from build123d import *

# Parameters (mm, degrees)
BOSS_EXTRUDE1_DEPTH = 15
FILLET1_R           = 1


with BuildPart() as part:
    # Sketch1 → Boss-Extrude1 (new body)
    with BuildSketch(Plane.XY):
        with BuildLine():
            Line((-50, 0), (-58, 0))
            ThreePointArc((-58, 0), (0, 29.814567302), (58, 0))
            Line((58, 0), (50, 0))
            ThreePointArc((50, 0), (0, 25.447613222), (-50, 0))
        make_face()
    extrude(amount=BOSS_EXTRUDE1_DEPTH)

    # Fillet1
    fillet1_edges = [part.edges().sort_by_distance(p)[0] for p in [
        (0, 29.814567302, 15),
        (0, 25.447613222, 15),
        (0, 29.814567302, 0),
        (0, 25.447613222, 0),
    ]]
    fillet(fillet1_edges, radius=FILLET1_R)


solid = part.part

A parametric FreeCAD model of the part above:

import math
import FreeCAD as App
import Part
import Sketcher

V = App.Vector


def edges_at(feature, points):
    """Names of the edges that pass closest to the given points."""
    edges = feature.Shape.Edges
    near = lambda p: min(range(len(edges)), key=lambda i: edges[i].distToShape(Part.Vertex(*p))[0])
    return sorted({f"Edge{near(p) + 1}" for p in points})

doc = App.newDocument("Part")
body = doc.addObject("PartDesign::Body", "Body")

# Sketch on XY plane
sketch1 = doc.addObject("Sketcher::SketchObject", "Sketch")
body.addObject(sketch1)
sketch1.AttachmentSupport = (doc.XY_Plane, [""])
sketch1.MapMode = "FlatFace"
sketch1.addGeometry([
    Part.LineSegment(V(-58, 0, 0), V(-50, 0, 0)),
    Part.ArcOfCircle(Part.Circle(V(0, -36, 0), V(0, 0, 1), 62), math.radians(36), math.radians(144)),
    Part.LineSegment(V(50, 0, 0), V(58, 0, 0)),
    Part.ArcOfCircle(Part.Circle(V(0, -42, 0), V(0, 0, 1), 71), math.radians(36), math.radians(144)),
], False)
sketch1.addConstraint([
    Sketcher.Constraint("Coincident", 0, 2, 1, 2),
    Sketcher.Constraint("Coincident", 1, 1, 2, 1),
    Sketcher.Constraint("Coincident", 2, 2, 3, 1),
    Sketcher.Constraint("Coincident", 3, 2, 0, 1),
    Sketcher.Constraint("Horizontal", 0),
    Sketcher.Constraint("Horizontal", 2),
    Sketcher.Constraint("Symmetric", 0, 2, 1, 1, -1, 1),
    Sketcher.Constraint("Symmetric", 2, 2, 3, 2, -2),
    Sketcher.Constraint("DistanceX", 0, 1, 0, 2, 8.0),
    Sketcher.Constraint("DistanceX", 0, 2, -1, 1, 50.0),
    Sketcher.Constraint("Radius", 3, 71.322659),
    Sketcher.Constraint("Radius", 1, 61.844327),
])
pad1 = doc.addObject("PartDesign::Pad", "Pad")
body.addObject(pad1)
pad1.Profile = sketch1
pad1.Length = 15
doc.recompute()

fillet = doc.addObject("PartDesign::Fillet", "Fillet")
body.addObject(fillet)
fillet.Base = (pad1, edges_at(pad1, [
    (0, 29.815, 15),
    (0, 25.448, 15),
    (0, 29.815, 0),
    (0, 25.448, 0),
]))
fillet.Radius = 1

doc.recompute()
